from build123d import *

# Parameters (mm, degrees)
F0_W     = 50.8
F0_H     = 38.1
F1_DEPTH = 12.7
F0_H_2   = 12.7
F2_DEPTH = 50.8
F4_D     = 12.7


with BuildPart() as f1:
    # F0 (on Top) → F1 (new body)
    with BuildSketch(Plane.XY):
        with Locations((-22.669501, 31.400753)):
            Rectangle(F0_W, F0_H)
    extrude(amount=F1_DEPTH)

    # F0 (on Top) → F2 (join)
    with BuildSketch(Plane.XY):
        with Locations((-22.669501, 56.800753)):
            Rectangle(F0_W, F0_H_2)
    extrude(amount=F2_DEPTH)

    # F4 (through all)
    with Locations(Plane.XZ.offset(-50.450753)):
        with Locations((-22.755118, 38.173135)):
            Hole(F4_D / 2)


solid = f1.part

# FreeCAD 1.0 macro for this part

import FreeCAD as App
import Part
import Sketcher
from FreeCAD import Vector
Q = App.Units.Quantity


def add_polygon(sketch, points):
    """Adds a closed chain of lines whose ends are joined by coincident constraints."""
    first, n = sketch.GeometryCount, len(points)
    for a, b in zip(points, points[1:] + points[:1]):
        sketch.addGeometry(Part.LineSegment(App.Vector(*a, 0), App.Vector(*b, 0)), False)
    for i in range(n):
        sketch.addConstraint(Sketcher.Constraint("Coincident", first + i, 2, first + (i + 1) % n, 1))

doc = App.newDocument("Part")
body = doc.addObject("PartDesign::Body", "Body")

sketch1 = body.newObject("Sketcher::SketchObject", "Sketch")
sketch1.AttachmentSupport = (doc.getObject("XY_Plane"), [""])
sketch1.MapMode = "FlatFace"
add_polygon(sketch1, [(-48, 50), (-48, 12), (3, 12), (3, 50)])
sketch1.addConstraint([
    Sketcher.Constraint("Vertical", 0),
    Sketcher.Constraint("Horizontal", 1),
    Sketcher.Constraint("Vertical", 2),
    Sketcher.Constraint("Horizontal", 3),
    Sketcher.Constraint("DistanceX", 1, 1, 1, 2, Q("2 in")),
    Sketcher.Constraint("DistanceY", 0, 2, 0, 1, Q("1.5 in")),
    Sketcher.Constraint("DistanceX", 0, 2, -1, 1, Q("1.8925 in")),
    Sketcher.Constraint("DistanceY", -1, 1, 0, 2, Q("12.350753 mm")),
])
pad1 = body.newObject("PartDesign::Pad", "Pad")
pad1.Profile = sketch1
pad1.Length = Q("0.5 in")

sketch2 = body.newObject("Sketcher::SketchObject", "Sketch001")
sketch2.AttachmentSupport = (doc.getObject("XY_Plane"), [""])
sketch2.MapMode = "FlatFace"
add_polygon(sketch2, [(-48, 63), (-48, 50), (3, 50), (3, 63)])
sketch2.addConstraint([
    Sketcher.Constraint("Vertical", 0),
    Sketcher.Constraint("Horizontal", 1),
    Sketcher.Constraint("Vertical", 2),
    Sketcher.Constraint("Horizontal", 3),
    Sketcher.Constraint("DistanceX", 1, 1, 1, 2, Q("2 in")),
    Sketcher.Constraint("DistanceY", 0, 2, 0, 1, Q("0.5 in")),
    Sketcher.Constraint("DistanceX", 0, 2, -1, 1, Q("1.8925 in")),
    Sketcher.Constraint("DistanceY", -1, 1, 0, 2, Q("50.450753 mm")),
])
pad2 = body.newObject("PartDesign::Pad", "Pad001")
pad2.Profile = sketch2
pad2.Length = Q("2 in")

sketch3 = body.newObject("Sketcher::SketchObject", "Sketch002")
sketch3.AttachmentSupport = (doc.getObject("XZ_Plane"), [""])
sketch3.MapMode = "FlatFace"
sketch3.AttachmentOffset = App.Placement(Vector(0, 0, -50.450753), App.Rotation())
sketch3.addGeometry(Part.Circle(Vector(-23, 38, 0), Vector(0, 0, 1), 6), False)
sketch3.addConstraint([
    Sketcher.Constraint("Diameter", 0, Q("0.5 in")),
    Sketcher.Constraint("DistanceX", 0, 3, -1, 1, Q("22.755118 mm")),
    Sketcher.Constraint("DistanceY", -1, 1, 0, 3, Q("38.173135 mm")),
])
doc.recompute()
hole = body.newObject("PartDesign::Hole", "Hole")
hole.Profile = sketch3
hole.ThreadType = "None"
hole.Diameter = Q("0.5 in")
hole.DepthType = "ThroughAll"

doc.recompute()
